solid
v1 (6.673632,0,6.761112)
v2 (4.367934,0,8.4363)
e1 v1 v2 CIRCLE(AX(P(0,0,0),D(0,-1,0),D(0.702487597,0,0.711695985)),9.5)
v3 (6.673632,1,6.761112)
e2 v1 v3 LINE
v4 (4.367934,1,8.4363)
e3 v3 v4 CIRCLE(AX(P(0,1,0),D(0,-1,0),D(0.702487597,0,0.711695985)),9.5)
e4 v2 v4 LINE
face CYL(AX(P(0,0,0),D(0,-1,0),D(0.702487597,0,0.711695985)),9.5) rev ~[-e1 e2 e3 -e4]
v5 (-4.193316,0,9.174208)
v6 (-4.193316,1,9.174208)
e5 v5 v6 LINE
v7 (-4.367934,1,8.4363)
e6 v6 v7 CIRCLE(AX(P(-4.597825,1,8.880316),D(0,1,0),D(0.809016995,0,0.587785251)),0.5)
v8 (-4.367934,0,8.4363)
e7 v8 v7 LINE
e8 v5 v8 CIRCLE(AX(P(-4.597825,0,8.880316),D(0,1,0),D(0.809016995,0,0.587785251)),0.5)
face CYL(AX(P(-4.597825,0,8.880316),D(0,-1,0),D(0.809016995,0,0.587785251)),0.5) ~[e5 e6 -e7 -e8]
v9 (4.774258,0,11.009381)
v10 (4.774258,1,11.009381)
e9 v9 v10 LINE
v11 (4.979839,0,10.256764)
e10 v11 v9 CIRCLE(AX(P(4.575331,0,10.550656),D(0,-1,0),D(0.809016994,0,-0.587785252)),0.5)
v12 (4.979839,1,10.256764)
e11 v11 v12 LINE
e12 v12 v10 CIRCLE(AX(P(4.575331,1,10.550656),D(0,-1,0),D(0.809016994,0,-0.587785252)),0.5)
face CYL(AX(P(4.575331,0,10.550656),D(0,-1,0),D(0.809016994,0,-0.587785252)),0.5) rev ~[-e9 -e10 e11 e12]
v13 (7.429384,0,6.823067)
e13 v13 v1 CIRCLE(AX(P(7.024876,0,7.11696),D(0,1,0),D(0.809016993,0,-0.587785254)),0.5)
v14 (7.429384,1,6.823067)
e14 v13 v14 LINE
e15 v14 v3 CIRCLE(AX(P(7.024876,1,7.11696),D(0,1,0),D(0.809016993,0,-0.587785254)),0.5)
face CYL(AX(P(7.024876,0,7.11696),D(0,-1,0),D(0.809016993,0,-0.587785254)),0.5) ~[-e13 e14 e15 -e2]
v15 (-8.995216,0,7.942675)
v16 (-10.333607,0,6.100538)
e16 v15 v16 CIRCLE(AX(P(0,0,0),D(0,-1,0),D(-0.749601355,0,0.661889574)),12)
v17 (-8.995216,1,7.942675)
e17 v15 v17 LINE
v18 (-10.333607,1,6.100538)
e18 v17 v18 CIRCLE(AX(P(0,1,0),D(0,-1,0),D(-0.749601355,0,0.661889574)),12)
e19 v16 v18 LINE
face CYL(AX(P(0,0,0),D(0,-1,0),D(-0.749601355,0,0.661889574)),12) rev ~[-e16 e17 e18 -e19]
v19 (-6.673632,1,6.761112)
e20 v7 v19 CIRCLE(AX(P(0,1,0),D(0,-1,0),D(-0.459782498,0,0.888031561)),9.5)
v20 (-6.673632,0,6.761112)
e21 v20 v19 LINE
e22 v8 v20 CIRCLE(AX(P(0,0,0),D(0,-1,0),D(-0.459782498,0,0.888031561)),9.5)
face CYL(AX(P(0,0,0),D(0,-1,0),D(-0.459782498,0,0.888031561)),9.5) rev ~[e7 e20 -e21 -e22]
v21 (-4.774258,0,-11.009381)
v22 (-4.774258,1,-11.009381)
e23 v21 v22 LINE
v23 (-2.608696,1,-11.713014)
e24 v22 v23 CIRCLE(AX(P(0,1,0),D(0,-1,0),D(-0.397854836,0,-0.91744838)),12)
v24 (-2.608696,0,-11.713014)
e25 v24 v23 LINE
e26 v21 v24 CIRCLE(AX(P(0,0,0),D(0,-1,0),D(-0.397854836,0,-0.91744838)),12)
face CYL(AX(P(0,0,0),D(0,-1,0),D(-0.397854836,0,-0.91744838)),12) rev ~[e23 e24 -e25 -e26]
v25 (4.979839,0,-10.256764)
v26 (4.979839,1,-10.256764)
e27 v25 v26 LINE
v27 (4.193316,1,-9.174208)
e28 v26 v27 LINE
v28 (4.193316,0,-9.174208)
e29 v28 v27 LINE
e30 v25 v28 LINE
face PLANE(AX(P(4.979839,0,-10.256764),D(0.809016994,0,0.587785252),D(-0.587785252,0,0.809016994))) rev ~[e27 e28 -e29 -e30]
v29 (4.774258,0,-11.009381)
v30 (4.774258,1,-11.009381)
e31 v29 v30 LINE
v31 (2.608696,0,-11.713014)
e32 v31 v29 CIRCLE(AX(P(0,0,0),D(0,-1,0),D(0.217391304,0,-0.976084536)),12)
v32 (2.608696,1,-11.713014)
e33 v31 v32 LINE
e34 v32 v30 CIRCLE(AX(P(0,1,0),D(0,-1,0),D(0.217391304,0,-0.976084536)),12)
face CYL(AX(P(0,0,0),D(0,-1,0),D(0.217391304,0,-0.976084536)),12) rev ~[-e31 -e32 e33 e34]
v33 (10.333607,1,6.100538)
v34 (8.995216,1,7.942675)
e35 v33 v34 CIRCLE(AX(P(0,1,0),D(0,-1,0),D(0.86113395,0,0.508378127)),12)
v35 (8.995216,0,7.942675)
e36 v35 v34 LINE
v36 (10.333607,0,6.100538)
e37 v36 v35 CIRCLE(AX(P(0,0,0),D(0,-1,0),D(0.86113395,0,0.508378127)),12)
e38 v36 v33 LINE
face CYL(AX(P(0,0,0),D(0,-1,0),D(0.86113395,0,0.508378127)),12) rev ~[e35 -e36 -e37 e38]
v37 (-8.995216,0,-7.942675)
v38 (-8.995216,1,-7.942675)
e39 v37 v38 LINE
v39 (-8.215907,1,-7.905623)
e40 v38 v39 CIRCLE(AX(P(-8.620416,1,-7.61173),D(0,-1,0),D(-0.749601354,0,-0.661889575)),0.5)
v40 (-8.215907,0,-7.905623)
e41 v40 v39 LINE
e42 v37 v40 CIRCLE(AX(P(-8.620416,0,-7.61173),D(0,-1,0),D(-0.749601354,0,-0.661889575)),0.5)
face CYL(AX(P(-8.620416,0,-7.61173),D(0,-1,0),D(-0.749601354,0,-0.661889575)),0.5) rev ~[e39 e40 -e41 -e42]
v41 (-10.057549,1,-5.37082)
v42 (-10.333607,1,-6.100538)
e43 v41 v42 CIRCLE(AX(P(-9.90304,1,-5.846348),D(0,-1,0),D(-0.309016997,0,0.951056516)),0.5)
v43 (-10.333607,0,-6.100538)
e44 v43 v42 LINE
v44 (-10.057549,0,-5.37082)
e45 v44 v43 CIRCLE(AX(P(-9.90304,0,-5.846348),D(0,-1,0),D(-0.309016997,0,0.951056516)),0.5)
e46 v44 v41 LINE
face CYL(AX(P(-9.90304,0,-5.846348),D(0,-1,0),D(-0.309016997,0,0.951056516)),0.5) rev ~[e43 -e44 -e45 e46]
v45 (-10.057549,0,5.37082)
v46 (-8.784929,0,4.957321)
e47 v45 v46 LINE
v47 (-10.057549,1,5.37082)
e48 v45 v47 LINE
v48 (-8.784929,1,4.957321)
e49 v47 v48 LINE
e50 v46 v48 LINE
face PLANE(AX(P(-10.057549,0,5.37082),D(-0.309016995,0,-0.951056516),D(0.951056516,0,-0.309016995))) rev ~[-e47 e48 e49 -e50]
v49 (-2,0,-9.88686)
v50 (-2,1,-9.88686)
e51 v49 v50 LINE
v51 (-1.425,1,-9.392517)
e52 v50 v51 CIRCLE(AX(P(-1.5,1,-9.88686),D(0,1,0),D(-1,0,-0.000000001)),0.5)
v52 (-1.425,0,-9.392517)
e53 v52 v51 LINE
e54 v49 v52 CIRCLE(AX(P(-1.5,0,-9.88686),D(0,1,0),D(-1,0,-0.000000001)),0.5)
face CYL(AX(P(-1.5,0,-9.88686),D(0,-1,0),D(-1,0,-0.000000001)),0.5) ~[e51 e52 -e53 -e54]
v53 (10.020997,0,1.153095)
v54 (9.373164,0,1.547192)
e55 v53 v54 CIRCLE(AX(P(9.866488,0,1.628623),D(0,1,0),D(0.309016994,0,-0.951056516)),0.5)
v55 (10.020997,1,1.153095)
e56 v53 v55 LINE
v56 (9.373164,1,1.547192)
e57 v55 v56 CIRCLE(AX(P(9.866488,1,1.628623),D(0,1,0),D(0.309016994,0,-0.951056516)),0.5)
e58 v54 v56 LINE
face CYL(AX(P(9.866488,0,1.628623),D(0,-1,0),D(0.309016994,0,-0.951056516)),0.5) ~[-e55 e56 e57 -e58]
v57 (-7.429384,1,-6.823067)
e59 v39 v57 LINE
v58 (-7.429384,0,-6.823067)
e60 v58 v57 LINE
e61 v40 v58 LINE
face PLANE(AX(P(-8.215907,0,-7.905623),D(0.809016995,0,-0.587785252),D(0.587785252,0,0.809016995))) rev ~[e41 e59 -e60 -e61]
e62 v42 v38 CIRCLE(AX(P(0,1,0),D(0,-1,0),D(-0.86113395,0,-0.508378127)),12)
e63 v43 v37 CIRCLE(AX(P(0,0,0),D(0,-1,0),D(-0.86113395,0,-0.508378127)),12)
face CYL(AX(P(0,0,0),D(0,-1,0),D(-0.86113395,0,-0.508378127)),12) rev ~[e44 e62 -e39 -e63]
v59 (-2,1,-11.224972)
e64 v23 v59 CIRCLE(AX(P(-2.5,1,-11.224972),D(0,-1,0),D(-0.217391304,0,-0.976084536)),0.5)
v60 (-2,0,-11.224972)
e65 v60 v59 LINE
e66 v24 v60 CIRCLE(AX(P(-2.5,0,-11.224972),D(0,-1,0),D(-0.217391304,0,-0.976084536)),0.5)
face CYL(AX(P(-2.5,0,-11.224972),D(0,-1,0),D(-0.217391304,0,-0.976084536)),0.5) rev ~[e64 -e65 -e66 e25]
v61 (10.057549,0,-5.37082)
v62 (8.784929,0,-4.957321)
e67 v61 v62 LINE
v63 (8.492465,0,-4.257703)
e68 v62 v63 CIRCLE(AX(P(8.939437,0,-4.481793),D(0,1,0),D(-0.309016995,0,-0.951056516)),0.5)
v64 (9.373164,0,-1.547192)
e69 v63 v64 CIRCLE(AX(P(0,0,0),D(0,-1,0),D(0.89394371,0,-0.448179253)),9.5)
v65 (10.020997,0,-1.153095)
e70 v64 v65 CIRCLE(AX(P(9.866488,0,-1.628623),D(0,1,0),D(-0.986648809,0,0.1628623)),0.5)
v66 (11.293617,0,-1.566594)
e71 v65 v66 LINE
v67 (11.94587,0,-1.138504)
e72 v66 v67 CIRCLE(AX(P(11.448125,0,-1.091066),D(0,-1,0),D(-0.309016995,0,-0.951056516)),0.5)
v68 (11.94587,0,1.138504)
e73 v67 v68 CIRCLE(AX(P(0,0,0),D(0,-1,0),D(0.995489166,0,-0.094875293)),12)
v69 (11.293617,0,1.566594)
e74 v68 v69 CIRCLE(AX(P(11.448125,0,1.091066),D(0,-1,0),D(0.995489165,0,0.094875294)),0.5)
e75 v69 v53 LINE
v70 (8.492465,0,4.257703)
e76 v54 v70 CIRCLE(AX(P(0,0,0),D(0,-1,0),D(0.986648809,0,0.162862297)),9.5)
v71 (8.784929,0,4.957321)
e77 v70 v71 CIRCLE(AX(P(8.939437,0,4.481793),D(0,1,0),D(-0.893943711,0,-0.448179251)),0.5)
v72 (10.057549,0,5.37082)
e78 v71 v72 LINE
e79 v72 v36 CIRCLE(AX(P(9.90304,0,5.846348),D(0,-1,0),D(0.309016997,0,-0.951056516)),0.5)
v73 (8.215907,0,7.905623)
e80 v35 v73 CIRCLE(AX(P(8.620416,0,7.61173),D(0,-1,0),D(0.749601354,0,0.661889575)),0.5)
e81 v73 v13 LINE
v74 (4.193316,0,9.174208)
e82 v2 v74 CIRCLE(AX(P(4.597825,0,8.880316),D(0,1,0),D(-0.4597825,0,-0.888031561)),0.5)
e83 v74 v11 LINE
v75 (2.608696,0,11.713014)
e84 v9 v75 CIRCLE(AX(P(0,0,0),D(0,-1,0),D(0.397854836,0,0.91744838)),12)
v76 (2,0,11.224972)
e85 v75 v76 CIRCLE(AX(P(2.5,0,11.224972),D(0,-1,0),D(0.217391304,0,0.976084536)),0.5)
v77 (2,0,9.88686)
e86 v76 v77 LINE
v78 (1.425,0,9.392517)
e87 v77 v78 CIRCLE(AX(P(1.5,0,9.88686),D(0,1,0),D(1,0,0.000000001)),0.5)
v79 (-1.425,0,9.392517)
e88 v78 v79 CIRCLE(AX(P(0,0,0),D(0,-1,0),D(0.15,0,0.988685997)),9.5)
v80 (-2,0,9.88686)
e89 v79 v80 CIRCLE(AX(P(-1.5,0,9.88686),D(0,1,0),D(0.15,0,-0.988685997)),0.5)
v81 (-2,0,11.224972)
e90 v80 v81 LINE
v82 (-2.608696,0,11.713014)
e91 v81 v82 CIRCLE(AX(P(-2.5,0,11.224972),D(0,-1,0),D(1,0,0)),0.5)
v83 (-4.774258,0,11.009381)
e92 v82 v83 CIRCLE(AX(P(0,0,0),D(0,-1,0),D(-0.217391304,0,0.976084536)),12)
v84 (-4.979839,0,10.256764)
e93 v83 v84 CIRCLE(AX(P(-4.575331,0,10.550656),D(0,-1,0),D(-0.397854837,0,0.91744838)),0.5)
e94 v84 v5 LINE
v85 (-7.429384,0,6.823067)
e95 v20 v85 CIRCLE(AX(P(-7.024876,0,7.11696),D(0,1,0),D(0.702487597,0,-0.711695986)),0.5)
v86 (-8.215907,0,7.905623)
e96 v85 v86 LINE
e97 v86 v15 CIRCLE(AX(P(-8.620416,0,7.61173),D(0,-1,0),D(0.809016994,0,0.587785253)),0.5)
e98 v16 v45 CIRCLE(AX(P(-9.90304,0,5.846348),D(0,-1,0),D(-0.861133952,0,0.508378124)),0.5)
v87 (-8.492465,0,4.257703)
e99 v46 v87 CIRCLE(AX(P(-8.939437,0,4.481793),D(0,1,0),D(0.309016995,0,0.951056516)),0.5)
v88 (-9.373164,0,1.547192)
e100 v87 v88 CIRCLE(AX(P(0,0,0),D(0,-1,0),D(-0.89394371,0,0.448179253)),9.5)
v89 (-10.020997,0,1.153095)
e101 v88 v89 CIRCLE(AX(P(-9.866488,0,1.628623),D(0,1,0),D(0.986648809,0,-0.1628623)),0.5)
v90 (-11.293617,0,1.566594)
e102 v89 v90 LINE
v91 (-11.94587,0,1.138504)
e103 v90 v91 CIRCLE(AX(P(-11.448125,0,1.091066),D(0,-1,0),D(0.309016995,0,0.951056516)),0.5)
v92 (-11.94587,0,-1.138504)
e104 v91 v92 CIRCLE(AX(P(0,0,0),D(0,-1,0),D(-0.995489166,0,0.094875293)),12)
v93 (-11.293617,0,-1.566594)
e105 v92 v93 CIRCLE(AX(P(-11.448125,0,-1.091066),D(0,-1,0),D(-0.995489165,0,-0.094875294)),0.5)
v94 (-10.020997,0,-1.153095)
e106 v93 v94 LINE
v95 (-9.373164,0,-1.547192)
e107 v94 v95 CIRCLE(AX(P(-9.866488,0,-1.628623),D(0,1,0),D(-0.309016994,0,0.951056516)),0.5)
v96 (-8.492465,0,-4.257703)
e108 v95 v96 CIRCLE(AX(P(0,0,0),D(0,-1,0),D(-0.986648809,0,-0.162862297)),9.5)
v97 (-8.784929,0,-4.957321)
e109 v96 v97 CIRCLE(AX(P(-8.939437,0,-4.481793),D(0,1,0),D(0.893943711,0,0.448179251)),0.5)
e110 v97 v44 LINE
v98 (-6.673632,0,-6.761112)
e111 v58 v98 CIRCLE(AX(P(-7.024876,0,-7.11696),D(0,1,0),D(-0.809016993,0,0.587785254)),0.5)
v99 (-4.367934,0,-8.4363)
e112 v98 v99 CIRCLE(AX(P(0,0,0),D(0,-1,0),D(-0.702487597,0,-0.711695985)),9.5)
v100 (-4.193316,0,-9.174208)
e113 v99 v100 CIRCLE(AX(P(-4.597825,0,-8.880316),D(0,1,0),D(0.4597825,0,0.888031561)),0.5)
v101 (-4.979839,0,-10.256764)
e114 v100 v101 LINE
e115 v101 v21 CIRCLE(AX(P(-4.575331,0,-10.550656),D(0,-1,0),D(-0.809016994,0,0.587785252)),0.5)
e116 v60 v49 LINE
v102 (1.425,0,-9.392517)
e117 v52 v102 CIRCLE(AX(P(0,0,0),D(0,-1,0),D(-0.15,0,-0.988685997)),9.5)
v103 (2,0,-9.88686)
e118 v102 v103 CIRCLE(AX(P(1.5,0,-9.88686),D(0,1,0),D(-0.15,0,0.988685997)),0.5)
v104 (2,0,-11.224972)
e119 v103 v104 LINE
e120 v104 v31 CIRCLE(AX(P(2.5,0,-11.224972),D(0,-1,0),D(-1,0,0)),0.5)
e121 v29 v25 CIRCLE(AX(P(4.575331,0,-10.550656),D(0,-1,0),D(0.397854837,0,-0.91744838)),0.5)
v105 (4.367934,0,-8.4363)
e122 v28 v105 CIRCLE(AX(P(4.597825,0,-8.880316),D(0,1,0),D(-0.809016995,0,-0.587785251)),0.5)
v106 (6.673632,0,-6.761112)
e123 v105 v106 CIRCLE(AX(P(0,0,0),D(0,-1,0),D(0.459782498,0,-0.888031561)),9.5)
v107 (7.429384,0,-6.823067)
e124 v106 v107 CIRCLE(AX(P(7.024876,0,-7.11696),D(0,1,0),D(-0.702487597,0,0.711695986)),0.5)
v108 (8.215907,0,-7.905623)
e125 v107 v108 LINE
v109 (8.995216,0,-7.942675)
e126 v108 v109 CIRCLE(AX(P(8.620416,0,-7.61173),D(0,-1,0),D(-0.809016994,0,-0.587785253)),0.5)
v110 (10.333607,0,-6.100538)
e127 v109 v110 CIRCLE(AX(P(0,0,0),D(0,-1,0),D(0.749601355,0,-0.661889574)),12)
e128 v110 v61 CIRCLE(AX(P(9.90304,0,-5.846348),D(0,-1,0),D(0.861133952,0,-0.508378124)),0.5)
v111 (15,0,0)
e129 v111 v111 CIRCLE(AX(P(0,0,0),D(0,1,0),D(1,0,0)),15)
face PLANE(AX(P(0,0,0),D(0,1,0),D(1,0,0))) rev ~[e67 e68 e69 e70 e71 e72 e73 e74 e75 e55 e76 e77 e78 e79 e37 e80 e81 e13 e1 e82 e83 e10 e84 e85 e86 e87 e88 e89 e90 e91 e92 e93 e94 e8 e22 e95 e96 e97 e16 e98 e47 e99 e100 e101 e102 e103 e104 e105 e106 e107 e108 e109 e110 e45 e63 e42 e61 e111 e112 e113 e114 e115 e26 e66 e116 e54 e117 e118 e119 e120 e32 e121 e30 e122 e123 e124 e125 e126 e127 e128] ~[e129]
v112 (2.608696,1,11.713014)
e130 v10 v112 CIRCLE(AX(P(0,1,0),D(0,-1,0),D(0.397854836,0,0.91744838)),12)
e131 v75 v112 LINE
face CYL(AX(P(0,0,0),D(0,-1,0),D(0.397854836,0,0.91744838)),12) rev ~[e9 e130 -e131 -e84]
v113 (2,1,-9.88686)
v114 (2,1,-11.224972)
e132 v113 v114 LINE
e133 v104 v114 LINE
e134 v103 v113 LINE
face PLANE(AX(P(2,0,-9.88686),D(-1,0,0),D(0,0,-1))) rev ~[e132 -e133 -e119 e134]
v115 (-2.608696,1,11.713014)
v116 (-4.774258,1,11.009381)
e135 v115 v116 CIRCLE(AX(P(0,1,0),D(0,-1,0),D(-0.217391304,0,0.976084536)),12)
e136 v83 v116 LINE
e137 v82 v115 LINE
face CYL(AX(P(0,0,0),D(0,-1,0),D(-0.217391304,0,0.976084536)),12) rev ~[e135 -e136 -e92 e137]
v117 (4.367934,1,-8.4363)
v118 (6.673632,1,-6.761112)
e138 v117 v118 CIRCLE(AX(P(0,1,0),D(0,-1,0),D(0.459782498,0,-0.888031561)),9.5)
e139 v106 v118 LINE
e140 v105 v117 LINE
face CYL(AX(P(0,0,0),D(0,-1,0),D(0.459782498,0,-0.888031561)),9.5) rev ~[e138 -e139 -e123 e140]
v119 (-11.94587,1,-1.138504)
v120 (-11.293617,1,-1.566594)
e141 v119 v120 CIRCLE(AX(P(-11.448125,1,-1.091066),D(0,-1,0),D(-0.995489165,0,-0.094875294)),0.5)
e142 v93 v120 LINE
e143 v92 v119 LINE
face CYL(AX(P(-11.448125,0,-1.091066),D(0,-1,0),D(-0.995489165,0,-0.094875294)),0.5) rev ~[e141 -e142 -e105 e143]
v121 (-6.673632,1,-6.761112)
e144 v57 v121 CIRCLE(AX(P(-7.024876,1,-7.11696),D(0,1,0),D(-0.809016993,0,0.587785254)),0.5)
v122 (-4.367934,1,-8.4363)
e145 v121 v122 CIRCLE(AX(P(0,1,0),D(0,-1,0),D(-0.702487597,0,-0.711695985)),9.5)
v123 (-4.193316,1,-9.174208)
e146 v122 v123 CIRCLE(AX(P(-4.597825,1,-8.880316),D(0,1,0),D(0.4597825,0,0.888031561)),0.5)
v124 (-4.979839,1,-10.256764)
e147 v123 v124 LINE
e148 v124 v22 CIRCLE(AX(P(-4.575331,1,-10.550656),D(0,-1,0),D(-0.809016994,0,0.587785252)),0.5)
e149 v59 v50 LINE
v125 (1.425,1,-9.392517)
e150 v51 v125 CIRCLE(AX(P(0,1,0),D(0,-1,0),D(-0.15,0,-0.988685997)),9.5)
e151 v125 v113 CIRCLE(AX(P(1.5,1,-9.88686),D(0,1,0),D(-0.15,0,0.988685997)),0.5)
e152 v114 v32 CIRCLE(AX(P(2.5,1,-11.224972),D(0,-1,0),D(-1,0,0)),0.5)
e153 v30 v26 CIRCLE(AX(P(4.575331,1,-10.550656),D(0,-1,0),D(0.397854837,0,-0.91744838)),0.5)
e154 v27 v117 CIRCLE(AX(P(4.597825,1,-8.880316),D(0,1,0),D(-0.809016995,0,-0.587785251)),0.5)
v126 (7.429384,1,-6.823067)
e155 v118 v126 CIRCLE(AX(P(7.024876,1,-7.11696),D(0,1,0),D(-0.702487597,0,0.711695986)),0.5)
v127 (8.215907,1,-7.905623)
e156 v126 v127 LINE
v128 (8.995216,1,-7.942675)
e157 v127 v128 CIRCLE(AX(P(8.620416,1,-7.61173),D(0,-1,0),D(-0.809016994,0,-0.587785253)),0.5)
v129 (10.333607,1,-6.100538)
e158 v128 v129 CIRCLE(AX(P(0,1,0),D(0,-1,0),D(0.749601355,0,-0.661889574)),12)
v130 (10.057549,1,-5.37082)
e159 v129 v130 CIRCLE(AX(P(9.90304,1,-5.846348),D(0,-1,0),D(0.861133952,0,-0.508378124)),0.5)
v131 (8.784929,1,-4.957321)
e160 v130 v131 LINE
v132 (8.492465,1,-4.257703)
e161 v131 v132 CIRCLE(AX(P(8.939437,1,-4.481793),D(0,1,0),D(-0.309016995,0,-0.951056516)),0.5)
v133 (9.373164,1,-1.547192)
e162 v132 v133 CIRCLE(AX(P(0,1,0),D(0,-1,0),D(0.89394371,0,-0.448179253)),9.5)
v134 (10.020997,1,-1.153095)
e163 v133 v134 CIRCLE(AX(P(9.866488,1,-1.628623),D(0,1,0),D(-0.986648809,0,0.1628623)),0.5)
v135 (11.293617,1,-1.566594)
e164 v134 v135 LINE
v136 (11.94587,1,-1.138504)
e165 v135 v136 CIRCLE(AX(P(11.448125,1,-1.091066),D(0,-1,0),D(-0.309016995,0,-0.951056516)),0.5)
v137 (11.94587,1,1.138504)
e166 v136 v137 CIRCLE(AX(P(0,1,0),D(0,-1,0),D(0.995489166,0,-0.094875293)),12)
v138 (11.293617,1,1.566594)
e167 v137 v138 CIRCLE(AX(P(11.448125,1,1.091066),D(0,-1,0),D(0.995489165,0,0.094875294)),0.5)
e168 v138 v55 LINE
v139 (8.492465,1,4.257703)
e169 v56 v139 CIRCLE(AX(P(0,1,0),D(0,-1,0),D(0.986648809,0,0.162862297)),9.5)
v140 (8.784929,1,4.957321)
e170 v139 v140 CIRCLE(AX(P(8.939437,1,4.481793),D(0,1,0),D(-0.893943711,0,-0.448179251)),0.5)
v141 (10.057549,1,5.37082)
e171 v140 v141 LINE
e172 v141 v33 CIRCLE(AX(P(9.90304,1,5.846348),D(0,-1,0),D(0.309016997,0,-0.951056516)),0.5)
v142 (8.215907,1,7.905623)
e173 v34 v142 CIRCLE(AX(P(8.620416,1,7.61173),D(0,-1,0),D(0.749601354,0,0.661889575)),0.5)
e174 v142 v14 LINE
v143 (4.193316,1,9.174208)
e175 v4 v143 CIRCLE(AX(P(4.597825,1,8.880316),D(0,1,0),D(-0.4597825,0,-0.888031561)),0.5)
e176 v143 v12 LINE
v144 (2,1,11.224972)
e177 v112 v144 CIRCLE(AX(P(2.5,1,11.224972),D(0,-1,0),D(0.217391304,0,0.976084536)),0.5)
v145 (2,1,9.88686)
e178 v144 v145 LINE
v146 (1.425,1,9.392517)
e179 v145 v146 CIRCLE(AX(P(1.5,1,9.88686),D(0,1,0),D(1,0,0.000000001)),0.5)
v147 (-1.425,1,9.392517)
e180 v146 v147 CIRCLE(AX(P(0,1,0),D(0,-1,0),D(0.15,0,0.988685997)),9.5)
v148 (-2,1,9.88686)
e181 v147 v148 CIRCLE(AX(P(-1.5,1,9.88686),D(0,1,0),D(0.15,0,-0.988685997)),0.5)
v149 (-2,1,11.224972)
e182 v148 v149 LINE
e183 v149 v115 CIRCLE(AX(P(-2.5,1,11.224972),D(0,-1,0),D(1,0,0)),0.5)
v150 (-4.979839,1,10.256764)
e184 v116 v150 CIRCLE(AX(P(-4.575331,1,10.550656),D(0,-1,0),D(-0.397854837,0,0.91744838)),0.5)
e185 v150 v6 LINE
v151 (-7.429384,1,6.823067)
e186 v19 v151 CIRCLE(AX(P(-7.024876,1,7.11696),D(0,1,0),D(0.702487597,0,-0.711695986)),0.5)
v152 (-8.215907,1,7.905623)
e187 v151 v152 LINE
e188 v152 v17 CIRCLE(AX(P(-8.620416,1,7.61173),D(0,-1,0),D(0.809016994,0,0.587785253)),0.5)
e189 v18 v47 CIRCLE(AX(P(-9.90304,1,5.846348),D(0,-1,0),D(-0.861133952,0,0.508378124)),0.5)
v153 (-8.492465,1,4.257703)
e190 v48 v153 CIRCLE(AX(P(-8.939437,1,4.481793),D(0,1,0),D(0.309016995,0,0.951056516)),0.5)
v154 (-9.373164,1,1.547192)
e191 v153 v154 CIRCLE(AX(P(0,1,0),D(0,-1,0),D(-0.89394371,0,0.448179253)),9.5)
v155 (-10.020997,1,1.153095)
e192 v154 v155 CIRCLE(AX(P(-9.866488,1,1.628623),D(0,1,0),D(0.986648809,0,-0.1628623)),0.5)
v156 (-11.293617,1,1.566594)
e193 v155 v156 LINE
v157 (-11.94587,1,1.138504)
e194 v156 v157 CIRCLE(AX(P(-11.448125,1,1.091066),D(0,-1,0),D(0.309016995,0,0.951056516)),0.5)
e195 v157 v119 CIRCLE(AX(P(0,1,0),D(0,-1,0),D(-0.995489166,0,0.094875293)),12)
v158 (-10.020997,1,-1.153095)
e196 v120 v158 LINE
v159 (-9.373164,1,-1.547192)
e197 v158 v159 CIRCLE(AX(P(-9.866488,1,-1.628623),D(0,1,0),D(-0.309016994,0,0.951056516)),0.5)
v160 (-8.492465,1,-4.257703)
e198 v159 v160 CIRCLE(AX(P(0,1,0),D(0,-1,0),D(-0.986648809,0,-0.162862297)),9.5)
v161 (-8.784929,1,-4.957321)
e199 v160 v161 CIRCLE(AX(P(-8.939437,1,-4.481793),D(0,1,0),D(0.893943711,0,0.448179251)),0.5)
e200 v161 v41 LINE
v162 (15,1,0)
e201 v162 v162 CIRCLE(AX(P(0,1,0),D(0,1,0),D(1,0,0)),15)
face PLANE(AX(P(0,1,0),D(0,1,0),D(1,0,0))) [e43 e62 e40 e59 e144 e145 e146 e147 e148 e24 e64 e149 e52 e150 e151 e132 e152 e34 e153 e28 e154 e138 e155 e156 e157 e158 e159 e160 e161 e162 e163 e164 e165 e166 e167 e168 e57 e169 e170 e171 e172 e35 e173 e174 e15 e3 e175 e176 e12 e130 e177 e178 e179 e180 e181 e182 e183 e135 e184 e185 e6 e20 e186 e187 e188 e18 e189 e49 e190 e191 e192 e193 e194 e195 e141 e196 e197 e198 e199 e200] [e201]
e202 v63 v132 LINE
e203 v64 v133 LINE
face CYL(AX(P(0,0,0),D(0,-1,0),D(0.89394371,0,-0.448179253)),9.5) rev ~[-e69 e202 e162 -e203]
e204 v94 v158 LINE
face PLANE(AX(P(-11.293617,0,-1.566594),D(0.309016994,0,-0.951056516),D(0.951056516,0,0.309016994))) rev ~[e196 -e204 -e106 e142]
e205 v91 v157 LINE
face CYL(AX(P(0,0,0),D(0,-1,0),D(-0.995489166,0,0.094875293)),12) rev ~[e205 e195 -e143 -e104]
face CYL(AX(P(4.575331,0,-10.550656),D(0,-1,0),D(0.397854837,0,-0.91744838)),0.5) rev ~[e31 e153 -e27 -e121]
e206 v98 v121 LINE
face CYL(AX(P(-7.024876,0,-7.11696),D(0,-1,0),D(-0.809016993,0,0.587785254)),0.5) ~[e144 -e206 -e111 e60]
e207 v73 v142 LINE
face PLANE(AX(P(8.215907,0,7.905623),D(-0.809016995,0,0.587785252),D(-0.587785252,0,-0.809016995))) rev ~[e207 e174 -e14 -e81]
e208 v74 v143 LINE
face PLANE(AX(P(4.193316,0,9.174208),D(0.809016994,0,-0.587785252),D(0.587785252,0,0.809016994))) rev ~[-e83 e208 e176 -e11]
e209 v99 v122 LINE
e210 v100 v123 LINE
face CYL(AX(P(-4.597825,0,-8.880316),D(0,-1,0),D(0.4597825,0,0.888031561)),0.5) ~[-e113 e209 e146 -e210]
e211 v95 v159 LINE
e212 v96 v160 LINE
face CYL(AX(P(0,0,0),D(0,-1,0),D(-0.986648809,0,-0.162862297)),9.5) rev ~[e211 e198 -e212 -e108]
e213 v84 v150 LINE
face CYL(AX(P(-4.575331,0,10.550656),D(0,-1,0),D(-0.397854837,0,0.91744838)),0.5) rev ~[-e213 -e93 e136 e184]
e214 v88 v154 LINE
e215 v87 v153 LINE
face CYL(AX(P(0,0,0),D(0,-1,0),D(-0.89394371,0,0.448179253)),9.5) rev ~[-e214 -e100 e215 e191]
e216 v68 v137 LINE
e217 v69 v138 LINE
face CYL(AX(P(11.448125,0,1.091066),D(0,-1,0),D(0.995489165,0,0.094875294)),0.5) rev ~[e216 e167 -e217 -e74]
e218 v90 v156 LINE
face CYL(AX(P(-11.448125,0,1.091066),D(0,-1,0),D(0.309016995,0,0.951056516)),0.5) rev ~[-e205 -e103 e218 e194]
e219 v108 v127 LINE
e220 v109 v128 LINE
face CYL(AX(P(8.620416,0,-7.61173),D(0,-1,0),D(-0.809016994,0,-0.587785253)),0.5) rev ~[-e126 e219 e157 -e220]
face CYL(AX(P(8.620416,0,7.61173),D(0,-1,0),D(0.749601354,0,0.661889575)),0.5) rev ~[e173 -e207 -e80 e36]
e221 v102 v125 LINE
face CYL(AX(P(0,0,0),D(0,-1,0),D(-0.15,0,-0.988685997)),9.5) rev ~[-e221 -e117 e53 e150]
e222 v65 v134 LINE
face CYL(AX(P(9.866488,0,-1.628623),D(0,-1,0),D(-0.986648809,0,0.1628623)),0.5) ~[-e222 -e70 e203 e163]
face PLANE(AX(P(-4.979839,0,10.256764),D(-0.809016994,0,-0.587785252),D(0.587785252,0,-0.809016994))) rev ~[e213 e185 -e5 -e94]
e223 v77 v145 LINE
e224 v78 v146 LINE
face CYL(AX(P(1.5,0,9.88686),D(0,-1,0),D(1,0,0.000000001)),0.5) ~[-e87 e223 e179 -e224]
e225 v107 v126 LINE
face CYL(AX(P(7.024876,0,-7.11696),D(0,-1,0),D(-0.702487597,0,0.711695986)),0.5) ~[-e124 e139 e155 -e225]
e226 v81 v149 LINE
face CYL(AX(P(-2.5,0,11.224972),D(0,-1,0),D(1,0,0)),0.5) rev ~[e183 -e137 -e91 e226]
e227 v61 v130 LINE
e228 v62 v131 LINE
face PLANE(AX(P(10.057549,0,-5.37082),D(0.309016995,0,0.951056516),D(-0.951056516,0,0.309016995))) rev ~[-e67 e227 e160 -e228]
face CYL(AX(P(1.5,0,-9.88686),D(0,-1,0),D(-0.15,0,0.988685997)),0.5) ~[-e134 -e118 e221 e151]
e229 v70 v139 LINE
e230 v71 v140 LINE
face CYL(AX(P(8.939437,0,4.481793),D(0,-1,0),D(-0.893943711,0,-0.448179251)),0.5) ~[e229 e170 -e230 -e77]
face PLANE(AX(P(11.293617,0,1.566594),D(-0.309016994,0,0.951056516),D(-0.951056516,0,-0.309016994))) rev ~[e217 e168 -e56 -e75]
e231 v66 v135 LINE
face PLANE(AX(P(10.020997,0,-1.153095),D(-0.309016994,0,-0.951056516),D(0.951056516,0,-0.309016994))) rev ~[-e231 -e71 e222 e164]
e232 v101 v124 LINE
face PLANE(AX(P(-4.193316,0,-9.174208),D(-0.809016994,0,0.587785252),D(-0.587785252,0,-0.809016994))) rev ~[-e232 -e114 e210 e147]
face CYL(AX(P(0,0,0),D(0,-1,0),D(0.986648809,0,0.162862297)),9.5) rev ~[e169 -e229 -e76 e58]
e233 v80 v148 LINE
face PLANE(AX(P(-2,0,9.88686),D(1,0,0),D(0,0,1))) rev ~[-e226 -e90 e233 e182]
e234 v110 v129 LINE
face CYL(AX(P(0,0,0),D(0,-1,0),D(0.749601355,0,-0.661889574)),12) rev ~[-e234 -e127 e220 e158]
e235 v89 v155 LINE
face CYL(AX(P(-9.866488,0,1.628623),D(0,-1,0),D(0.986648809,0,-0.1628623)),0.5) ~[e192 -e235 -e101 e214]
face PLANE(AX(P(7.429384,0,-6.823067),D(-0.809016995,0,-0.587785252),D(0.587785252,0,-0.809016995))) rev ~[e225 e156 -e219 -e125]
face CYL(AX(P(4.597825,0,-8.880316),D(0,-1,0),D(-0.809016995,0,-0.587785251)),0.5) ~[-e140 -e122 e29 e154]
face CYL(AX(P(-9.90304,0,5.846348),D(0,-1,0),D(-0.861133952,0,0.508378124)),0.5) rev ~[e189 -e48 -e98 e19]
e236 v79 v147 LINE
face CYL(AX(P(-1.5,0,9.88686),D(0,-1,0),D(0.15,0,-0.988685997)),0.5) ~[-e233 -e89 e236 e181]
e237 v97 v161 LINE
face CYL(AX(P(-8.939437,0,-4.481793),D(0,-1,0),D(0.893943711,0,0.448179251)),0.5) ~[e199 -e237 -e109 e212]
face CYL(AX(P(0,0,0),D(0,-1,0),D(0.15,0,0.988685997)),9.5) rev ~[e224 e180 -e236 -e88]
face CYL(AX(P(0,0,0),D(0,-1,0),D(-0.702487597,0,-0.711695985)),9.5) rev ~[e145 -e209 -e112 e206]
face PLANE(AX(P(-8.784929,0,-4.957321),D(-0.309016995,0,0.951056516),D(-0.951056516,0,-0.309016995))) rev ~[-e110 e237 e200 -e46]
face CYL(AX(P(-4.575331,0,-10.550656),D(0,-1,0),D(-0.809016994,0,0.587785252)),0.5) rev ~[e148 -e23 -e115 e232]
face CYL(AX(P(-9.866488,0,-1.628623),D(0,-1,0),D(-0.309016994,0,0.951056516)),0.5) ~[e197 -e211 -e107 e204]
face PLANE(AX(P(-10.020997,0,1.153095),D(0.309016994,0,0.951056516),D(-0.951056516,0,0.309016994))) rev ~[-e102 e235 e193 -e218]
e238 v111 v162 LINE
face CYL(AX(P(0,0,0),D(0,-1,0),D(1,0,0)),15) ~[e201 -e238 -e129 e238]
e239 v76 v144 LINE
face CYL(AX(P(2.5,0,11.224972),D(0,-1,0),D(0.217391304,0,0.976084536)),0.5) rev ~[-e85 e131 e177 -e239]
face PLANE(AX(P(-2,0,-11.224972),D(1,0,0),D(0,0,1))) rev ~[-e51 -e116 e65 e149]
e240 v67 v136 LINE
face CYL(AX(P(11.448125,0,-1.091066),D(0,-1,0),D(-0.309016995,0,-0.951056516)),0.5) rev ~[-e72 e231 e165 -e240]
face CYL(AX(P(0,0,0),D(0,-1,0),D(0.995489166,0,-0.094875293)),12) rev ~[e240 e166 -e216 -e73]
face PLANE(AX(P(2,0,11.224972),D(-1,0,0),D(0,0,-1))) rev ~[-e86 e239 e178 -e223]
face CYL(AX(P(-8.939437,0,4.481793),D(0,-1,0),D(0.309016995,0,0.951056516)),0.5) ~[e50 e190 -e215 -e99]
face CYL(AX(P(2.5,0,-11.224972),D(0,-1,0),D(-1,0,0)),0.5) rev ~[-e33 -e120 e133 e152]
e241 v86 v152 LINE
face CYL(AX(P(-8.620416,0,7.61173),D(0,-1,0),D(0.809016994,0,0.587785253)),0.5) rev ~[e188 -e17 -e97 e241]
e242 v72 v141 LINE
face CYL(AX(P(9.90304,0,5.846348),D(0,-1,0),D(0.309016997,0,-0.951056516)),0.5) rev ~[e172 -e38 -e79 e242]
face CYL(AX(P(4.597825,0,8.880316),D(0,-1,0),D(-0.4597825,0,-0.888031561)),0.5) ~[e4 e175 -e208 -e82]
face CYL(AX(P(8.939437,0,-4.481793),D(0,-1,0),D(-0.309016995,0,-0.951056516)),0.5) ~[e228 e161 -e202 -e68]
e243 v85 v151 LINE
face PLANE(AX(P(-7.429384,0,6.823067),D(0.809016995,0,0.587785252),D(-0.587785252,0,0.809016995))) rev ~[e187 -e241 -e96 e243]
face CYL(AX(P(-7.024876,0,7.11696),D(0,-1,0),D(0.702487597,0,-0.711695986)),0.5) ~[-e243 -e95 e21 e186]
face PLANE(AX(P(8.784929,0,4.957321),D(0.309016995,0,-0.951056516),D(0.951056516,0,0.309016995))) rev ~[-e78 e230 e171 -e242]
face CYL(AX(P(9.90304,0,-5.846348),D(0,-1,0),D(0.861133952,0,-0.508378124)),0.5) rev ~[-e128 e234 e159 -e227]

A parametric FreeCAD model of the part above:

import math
import FreeCAD as App
import Part
import Sketcher
Q = App.Units.Quantity

doc = App.newDocument("Part")
body = doc.addObject("PartDesign::Body", "Body")

# Sketch on XZ plane
sketch1 = body.newObject("Sketcher::SketchObject", "Sketch")
sketch1.AttachmentSupport = (doc.getObject("XZ_Plane"), [""])
sketch1.MapMode = "FlatFace"
sketch1.addGeometry([
    Part.Circle(App.Vector(0, 0, 0), App.Vector(0, 0, 1), 15),  # 0
    Part.ArcOfCircle(Part.Circle(App.Vector(-2.5, -11.2, 0), App.Vector(0, 0, 1), 0.5), math.radians(-103), math.radians(0)),  # 1
    Part.LineSegment(App.Vector(-2, -11.2, 0), App.Vector(-2, -9.9, 0)),  # 2
    Part.ArcOfCircle(Part.Circle(App.Vector(-1.5, -9.9, 0), App.Vector(0, 0, 1), 0.5), math.radians(81), math.radians(180)),  # 3
    Part.ArcOfCircle(Part.Circle(App.Vector(0, 0, 0), App.Vector(0, 0, 1), 9.5), math.radians(-98.63), math.radians(-81.37)),  # 4
    Part.ArcOfCircle(Part.Circle(App.Vector(1.5, -9.9, 0), App.Vector(0, 0, 1), 0.5), math.radians(0), math.radians(99)),  # 5
    Part.LineSegment(App.Vector(2, -9.9, 0), App.Vector(2, -11.2, 0)),  # 6
    Part.ArcOfCircle(Part.Circle(App.Vector(2.5, -11.2, 0), App.Vector(0, 0, 1), 0.5), math.radians(180), math.radians(283)),  # 7
    Part.ArcOfCircle(Part.Circle(App.Vector(0, 0, 0), App.Vector(0, 0, 1), 12), math.radians(-77.44), math.radians(-66.56)),  # 8
    Part.ArcOfCircle(Part.Circle(App.Vector(4.6, -10.6, 0), App.Vector(0, 0, 1), 0.5), math.radians(-67), math.radians(36)),  # 9
    Part.LineSegment(App.Vector(5, -10.3, 0), App.Vector(4.2, -9.2, 0)),  # 10
    Part.ArcOfCircle(Part.Circle(App.Vector(4.6, -8.9, 0), App.Vector(0, 0, 1), 0.5), math.radians(117), math.radians(216)),  # 11
    Part.ArcOfCircle(Part.Circle(App.Vector(0, 0, 0), App.Vector(0, 0, 1), 9.5), math.radians(-62.63), math.radians(-45.37)),  # 12
    Part.ArcOfCircle(Part.Circle(App.Vector(7, -7.1, 0), App.Vector(0, 0, 1), 0.5), math.radians(36), math.radians(135)),  # 13
    Part.LineSegment(App.Vector(7.4, -6.8, 0), App.Vector(8.2, -7.9, 0)),  # 14
    Part.ArcOfCircle(Part.Circle(App.Vector(8.6, -7.6, 0), App.Vector(0, 0, 1), 0.5), math.radians(-144), math.radians(-41)),  # 15
    Part.ArcOfCircle(Part.Circle(App.Vector(0, 0, 0), App.Vector(0, 0, 1), 12), math.radians(-41.44), math.radians(-30.56)),  # 16
    Part.ArcOfCircle(Part.Circle(App.Vector(9.9, -5.8, 0), App.Vector(0, 0, 1), 0.5), math.radians(-31), math.radians(72)),  # 17
    Part.LineSegment(App.Vector(10.1, -5.4, 0), App.Vector(8.8, -5, 0)),  # 18
    Part.ArcOfCircle(Part.Circle(App.Vector(8.9, -4.5, 0), App.Vector(0, 0, 1), 0.5), math.radians(153), math.radians(252)),  # 19
    Part.ArcOfCircle(Part.Circle(App.Vector(0, 0, 0), App.Vector(0, 0, 1), 9.5), math.radians(-26.63), math.radians(-9.37)),  # 20
    Part.ArcOfCircle(Part.Circle(App.Vector(9.9, -1.6, 0), App.Vector(0, 0, 1), 0.5), math.radians(72), math.radians(171)),  # 21
    Part.LineSegment(App.Vector(10, -1.2, 0), App.Vector(11.3, -1.6, 0)),  # 22
    Part.ArcOfCircle(Part.Circle(App.Vector(11.4, -1.1, 0), App.Vector(0, 0, 1), 0.5), math.radians(-108), math.radians(-5)),  # 23
    Part.ArcOfCircle(Part.Circle(App.Vector(0, 0, 0), App.Vector(0, 0, 1), 12), math.radians(-5.44), math.radians(5.44)),  # 24
    Part.ArcOfCircle(Part.Circle(App.Vector(11.4, 1.1, 0), App.Vector(0, 0, 1), 0.5), math.radians(5), math.radians(108)),  # 25
    Part.LineSegment(App.Vector(11.3, 1.6, 0), App.Vector(10, 1.2, 0)),  # 26
    Part.ArcOfCircle(Part.Circle(App.Vector(9.9, 1.6, 0), App.Vector(0, 0, 1), 0.5), math.radians(-171), math.radians(-72)),  # 27
    Part.ArcOfCircle(Part.Circle(App.Vector(0, 0, 0), App.Vector(0, 0, 1), 9.5), math.radians(9.37), math.radians(26.63)),  # 28
    Part.ArcOfCircle(Part.Circle(App.Vector(8.9, 4.5, 0), App.Vector(0, 0, 1), 0.5), math.radians(108), math.radians(207)),  # 29
    Part.LineSegment(App.Vector(8.8, 5, 0), App.Vector(10.1, 5.4, 0)),  # 30
    Part.ArcOfCircle(Part.Circle(App.Vector(9.9, 5.8, 0), App.Vector(0, 0, 1), 0.5), math.radians(-72), math.radians(31)),  # 31
    Part.ArcOfCircle(Part.Circle(App.Vector(0, 0, 0), App.Vector(0, 0, 1), 12), math.radians(30.56), math.radians(41.44)),  # 32
    Part.ArcOfCircle(Part.Circle(App.Vector(8.6, 7.6, 0), App.Vector(0, 0, 1), 0.5), math.radians(41), math.radians(144)),  # 33
    Part.LineSegment(App.Vector(8.2, 7.9, 0), App.Vector(7.4, 6.8, 0)),  # 34
    Part.ArcOfCircle(Part.Circle(App.Vector(7, 7.1, 0), App.Vector(0, 0, 1), 0.5), math.radians(-135), math.radians(-36)),  # 35
    Part.ArcOfCircle(Part.Circle(App.Vector(0, 0, 0), App.Vector(0, 0, 1), 9.5), math.radians(45.37), math.radians(62.63)),  # 36
    Part.ArcOfCircle(Part.Circle(App.Vector(4.6, 8.9, 0), App.Vector(0, 0, 1), 0.5), math.radians(144), math.radians(243)),  # 37
    Part.LineSegment(App.Vector(4.2, 9.2, 0), App.Vector(5, 10.3, 0)),  # 38
    Part.ArcOfCircle(Part.Circle(App.Vector(4.6, 10.6, 0), App.Vector(0, 0, 1), 0.5), math.radians(-36), math.radians(67)),  # 39
    Part.ArcOfCircle(Part.Circle(App.Vector(0, 0, 0), App.Vector(0, 0, 1), 12), math.radians(66.56), math.radians(77.44)),  # 40
    Part.ArcOfCircle(Part.Circle(App.Vector(2.5, 11.2, 0), App.Vector(0, 0, 1), 0.5), math.radians(77), math.radians(180)),  # 41
    Part.LineSegment(App.Vector(2, 11.2, 0), App.Vector(2, 9.9, 0)),  # 42
    Part.ArcOfCircle(Part.Circle(App.Vector(1.5, 9.9, 0), App.Vector(0, 0, 1), 0.5), math.radians(-99), math.radians(0)),  # 43
    Part.ArcOfCircle(Part.Circle(App.Vector(0, 0, 0), App.Vector(0, 0, 1), 9.5), math.radians(81.37), math.radians(98.63)),  # 44
    Part.ArcOfCircle(Part.Circle(App.Vector(-1.5, 9.9, 0), App.Vector(0, 0, 1), 0.5), math.radians(180), math.radians(279)),  # 45
    Part.LineSegment(App.Vector(-2, 9.9, 0), App.Vector(-2, 11.2, 0)),  # 46
    Part.ArcOfCircle(Part.Circle(App.Vector(-2.5, 11.2, 0), App.Vector(0, 0, 1), 0.5), math.radians(0), math.radians(103)),  # 47
    Part.ArcOfCircle(Part.Circle(App.Vector(0, 0, 0), App.Vector(0, 0, 1), 12), math.radians(102.56), math.radians(113.44)),  # 48
    Part.ArcOfCircle(Part.Circle(App.Vector(-4.6, 10.6, 0), App.Vector(0, 0, 1), 0.5), math.radians(113), math.radians(216)),  # 49
    Part.LineSegment(App.Vector(-5, 10.3, 0), App.Vector(-4.2, 9.2, 0)),  # 50
    Part.ArcOfCircle(Part.Circle(App.Vector(-4.6, 8.9, 0), App.Vector(0, 0, 1), 0.5), math.radians(-63), math.radians(36)),  # 51
    Part.ArcOfCircle(Part.Circle(App.Vector(0, 0, 0), App.Vector(0, 0, 1), 9.5), math.radians(117.37), math.radians(134.63)),  # 52
    Part.ArcOfCircle(Part.Circle(App.Vector(-7, 7.1, 0), App.Vector(0, 0, 1), 0.5), math.radians(-144), math.radians(-45)),  # 53
    Part.LineSegment(App.Vector(-7.4, 6.8, 0), App.Vector(-8.2, 7.9, 0)),  # 54
    Part.ArcOfCircle(Part.Circle(App.Vector(-8.6, 7.6, 0), App.Vector(0, 0, 1), 0.5), math.radians(36), math.radians(139)),  # 55
    Part.ArcOfCircle(Part.Circle(App.Vector(0, 0, 0), App.Vector(0, 0, 1), 12), math.radians(138.56), math.radians(149.44)),  # 56
    Part.ArcOfCircle(Part.Circle(App.Vector(-9.9, 5.8, 0), App.Vector(0, 0, 1), 0.5), math.radians(149), math.radians(252)),  # 57
    Part.LineSegment(App.Vector(-10.1, 5.4, 0), App.Vector(-8.8, 5, 0)),  # 58
    Part.ArcOfCircle(Part.Circle(App.Vector(-8.9, 4.5, 0), App.Vector(0, 0, 1), 0.5), math.radians(-27), math.radians(72)),  # 59
    Part.ArcOfCircle(Part.Circle(App.Vector(0, 0, 0), App.Vector(0, 0, 1), 9.5), math.radians(153.37), math.radians(170.63)),  # 60
    Part.ArcOfCircle(Part.Circle(App.Vector(-9.9, 1.6, 0), App.Vector(0, 0, 1), 0.5), math.radians(-108), math.radians(-9)),  # 61
    Part.LineSegment(App.Vector(-10, 1.2, 0), App.Vector(-11.3, 1.6, 0)),  # 62
    Part.ArcOfCircle(Part.Circle(App.Vector(-11.4, 1.1, 0), App.Vector(0, 0, 1), 0.5), math.radians(72), math.radians(175)),  # 63
    Part.ArcOfCircle(Part.Circle(App.Vector(0, 0, 0), App.Vector(0, 0, 1), 12), math.radians(174.56), math.radians(185.44)),  # 64
    Part.ArcOfCircle(Part.Circle(App.Vector(-11.4, -1.1, 0), App.Vector(0, 0, 1), 0.5), math.radians(-175), math.radians(-72)),  # 65
    Part.LineSegment(App.Vector(-11.3, -1.6, 0), App.Vector(-10, -1.2, 0)),  # 66
    Part.ArcOfCircle(Part.Circle(App.Vector(-9.9, -1.6, 0), App.Vector(0, 0, 1), 0.5), math.radians(9), math.radians(108)),  # 67
    Part.ArcOfCircle(Part.Circle(App.Vector(0, 0, 0), App.Vector(0, 0, 1), 9.5), math.radians(-170.63), math.radians(-153.37)),  # 68
    Part.ArcOfCircle(Part.Circle(App.Vector(-8.9, -4.5, 0), App.Vector(0, 0, 1), 0.5), math.radians(-72), math.radians(27)),  # 69
    Part.LineSegment(App.Vector(-8.8, -5, 0), App.Vector(-10.1, -5.4, 0)),  # 70
    Part.ArcOfCircle(Part.Circle(App.Vector(-9.9, -5.8, 0), App.Vector(0, 0, 1), 0.5), math.radians(108), math.radians(211)),  # 71
    Part.ArcOfCircle(Part.Circle(App.Vector(0, 0, 0), App.Vector(0, 0, 1), 12), math.radians(-149.44), math.radians(-138.56)),  # 72
    Part.ArcOfCircle(Part.Circle(App.Vector(-8.6, -7.6, 0), App.Vector(0, 0, 1), 0.5), math.radians(-139), math.radians(-36)),  # 73
    Part.LineSegment(App.Vector(-8.2, -7.9, 0), App.Vector(-7.4, -6.8, 0)),  # 74
    Part.ArcOfCircle(Part.Circle(App.Vector(-7, -7.1, 0), App.Vector(0, 0, 1), 0.5), math.radians(45), math.radians(144)),  # 75
    Part.ArcOfCircle(Part.Circle(App.Vector(0, 0, 0), App.Vector(0, 0, 1), 9.5), math.radians(-134.63), math.radians(-117.37)),  # 76
    Part.ArcOfCircle(Part.Circle(App.Vector(-4.6, -8.9, 0), App.Vector(0, 0, 1), 0.5), math.radians(-36), math.radians(63)),  # 77
    Part.LineSegment(App.Vector(-4.2, -9.2, 0), App.Vector(-5, -10.3, 0)),  # 78
    Part.ArcOfCircle(Part.Circle(App.Vector(-4.6, -10.6, 0), App.Vector(0, 0, 1), 0.5), math.radians(144), math.radians(247)),  # 79
    Part.ArcOfCircle(Part.Circle(App.Vector(0, 0, 0), App.Vector(0, 0, 1), 12), math.radians(-113.44), math.radians(-102.56)),  # 80
], False)
sketch1.addConstraint([
    Sketcher.Constraint("Tangent", 1, 2, 2, 1),
    Sketcher.Constraint("Tangent", 2, 2, 3, 2),
    Sketcher.Constraint("Tangent", 3, 1, 4, 1),
    Sketcher.Constraint("Tangent", 4, 2, 5, 2),
    Sketcher.Constraint("Tangent", 5, 1, 6, 1),
    Sketcher.Constraint("Tangent", 6, 2, 7, 1),
    Sketcher.Constraint("Tangent", 7, 2, 8, 1),
    Sketcher.Constraint("Tangent", 8, 2, 9, 1),
    Sketcher.Constraint("Tangent", 9, 2, 10, 1),
    Sketcher.Constraint("Tangent", 10, 2, 11, 2),
    Sketcher.Constraint("Tangent", 11, 1, 12, 1),
    Sketcher.Constraint("Tangent", 12, 2, 13, 2),
    Sketcher.Constraint("Tangent", 13, 1, 14, 1),
    Sketcher.Constraint("Tangent", 14, 2, 15, 1),
    Sketcher.Constraint("Tangent", 15, 2, 16, 1),
    Sketcher.Constraint("Tangent", 16, 2, 17, 1),
    Sketcher.Constraint("Tangent", 17, 2, 18, 1),
    Sketcher.Constraint("Tangent", 18, 2, 19, 2),
    Sketcher.Constraint("Tangent", 19, 1, 20, 1),
    Sketcher.Constraint("Tangent", 20, 2, 21, 2),
    Sketcher.Constraint("Tangent", 21, 1, 22, 1),
    Sketcher.Constraint("Tangent", 22, 2, 23, 1),
    Sketcher.Constraint("Tangent", 23, 2, 24, 1),
    Sketcher.Constraint("Tangent", 24, 2, 25, 1),
    Sketcher.Constraint("Tangent", 25, 2, 26, 1),
    Sketcher.Constraint("Tangent", 26, 2, 27, 2),
    Sketcher.Constraint("Tangent", 27, 1, 28, 1),
    Sketcher.Constraint("Tangent", 28, 2, 29, 2),
    Sketcher.Constraint("Tangent", 29, 1, 30, 1),
    Sketcher.Constraint("Tangent", 30, 2, 31, 1),
    Sketcher.Constraint("Tangent", 31, 2, 32, 1),
    Sketcher.Constraint("Tangent", 32, 2, 33, 1),
    Sketcher.Constraint("Tangent", 33, 2, 34, 1),
    Sketcher.Constraint("Tangent", 34, 2, 35, 2),
    Sketcher.Constraint("Tangent", 35, 1, 36, 1),
    Sketcher.Constraint("Tangent", 36, 2, 37, 2),
    Sketcher.Constraint("Tangent", 37, 1, 38, 1),
    Sketcher.Constraint("Tangent", 38, 2, 39, 1),
    Sketcher.Constraint("Tangent", 39, 2, 40, 1),
    Sketcher.Constraint("Tangent", 40, 2, 41, 1),
    Sketcher.Constraint("Tangent", 41, 2, 42, 1),
    Sketcher.Constraint("Tangent", 42, 2, 43, 2),
    Sketcher.Constraint("Tangent", 43, 1, 44, 1),
    Sketcher.Constraint("Tangent", 44, 2, 45, 2),
    Sketcher.Constraint("Tangent", 45, 1, 46, 1),
    Sketcher.Constraint("Tangent", 46, 2, 47, 1),
    Sketcher.Constraint("Tangent", 47, 2, 48, 1),
    Sketcher.Constraint("Tangent", 48, 2, 49, 1),
    Sketcher.Constraint("Tangent", 49, 2, 50, 1),
    Sketcher.Constraint("Tangent", 50, 2, 51, 2),
    Sketcher.Constraint("Tangent", 51, 1, 52, 1),
    Sketcher.Constraint("Tangent", 52, 2, 53, 2),
    Sketcher.Constraint("Tangent", 53, 1, 54, 1),
    Sketcher.Constraint("Tangent", 54, 2, 55, 1),
    Sketcher.Constraint("Tangent", 55, 2, 56, 1),
    Sketcher.Constraint("Tangent", 56, 2, 57, 1),
    Sketcher.Constraint("Tangent", 57, 2, 58, 1),
    Sketcher.Constraint("Tangent", 58, 2, 59, 2),
    Sketcher.Constraint("Tangent", 59, 1, 60, 1),
    Sketcher.Constraint("Tangent", 60, 2, 61, 2),
    Sketcher.Constraint("Tangent", 61, 1, 62, 1),
    Sketcher.Constraint("Tangent", 62, 2, 63, 1),
    Sketcher.Constraint("Tangent", 63, 2, 64, 1),
    Sketcher.Constraint("Tangent", 64, 2, 65, 1),
    Sketcher.Constraint("Tangent", 65, 2, 66, 1),
    Sketcher.Constraint("Tangent", 66, 2, 67, 2),
    Sketcher.Constraint("Tangent", 67, 1, 68, 1),
    Sketcher.Constraint("Tangent", 68, 2, 69, 2),
    Sketcher.Constraint("Tangent", 69, 1, 70, 1),
    Sketcher.Constraint("Tangent", 70, 2, 71, 1),
    Sketcher.Constraint("Tangent", 71, 2, 72, 1),
    Sketcher.Constraint("Tangent", 72, 2, 73, 1),
    Sketcher.Constraint("Tangent", 73, 2, 74, 1),
    Sketcher.Constraint("Tangent", 74, 2, 75, 2),
    Sketcher.Constraint("Tangent", 75, 1, 76, 1),
    Sketcher.Constraint("Tangent", 76, 2, 77, 2),
    Sketcher.Constraint("Tangent", 77, 1, 78, 1),
    Sketcher.Constraint("Tangent", 78, 2, 79, 1),
    Sketcher.Constraint("Tangent", 79, 2, 80, 1),
    Sketcher.Constraint("Tangent", 80, 2, 1, 1),
    Sketcher.Constraint("Vertical", 2),
    Sketcher.Constraint("Vertical", 6),
    Sketcher.Constraint("Vertical", 42),
    Sketcher.Constraint("Vertical", 46),
    Sketcher.Constraint("Coincident", 0, 3, -1, 1),
    Sketcher.Constraint("Coincident", 4, 3, -1, 1),
    Sketcher.Constraint("Coincident", 8, 3, -1, 1),
    Sketcher.Constraint("Coincident", 12, 3, -1, 1),
    Sketcher.Constraint("Coincident", 16, 3, -1, 1),
    Sketcher.Constraint("Coincident", 20, 3, -1, 1),
    Sketcher.Constraint("Coincident", 24, 3, -1, 1),
    Sketcher.Constraint("Coincident", 28, 3, -1, 1),
    Sketcher.Constraint("Coincident", 32, 3, -1, 1),
    Sketcher.Constraint("Coincident", 36, 3, -1, 1),
    Sketcher.Constraint("Coincident", 40, 3, -1, 1),
    Sketcher.Constraint("Coincident", 44, 3, -1, 1),
    Sketcher.Constraint("Coincident", 48, 3, -1, 1),
    Sketcher.Constraint("Coincident", 52, 3, -1, 1),
    Sketcher.Constraint("Coincident", 56, 3, -1, 1),
    Sketcher.Constraint("Coincident", 60, 3, -1, 1),
    Sketcher.Constraint("Coincident", 64, 3, -1, 1),
    Sketcher.Constraint("Coincident", 68, 3, -1, 1),
    Sketcher.Constraint("Coincident", 72, 3, -1, 1),
    Sketcher.Constraint("Coincident", 76, 3, -1, 1),
    Sketcher.Constraint("Coincident", 80, 3, -1, 1),
    Sketcher.Constraint("Equal", 1, 3),
    Sketcher.Constraint("Equal", 3, 5),
    Sketcher.Constraint("Equal", 5, 7),
    Sketcher.Constraint("Equal", 7, 9),
    Sketcher.Constraint("Equal", 9, 11),
    Sketcher.Constraint("Equal", 4, 12),
    Sketcher.Constraint("Equal", 11, 13),
    Sketcher.Constraint("Equal", 13, 15),
    Sketcher.Constraint("Equal", 8, 16),
    Sketcher.Constraint("Equal", 15, 17),
    Sketcher.Constraint("Equal", 17, 19),
    Sketcher.Constraint("Equal", 12, 20),
    Sketcher.Constraint("Equal", 19, 21),
    Sketcher.Constraint("Equal", 21, 23),
    Sketcher.Constraint("Equal", 16, 24),
    Sketcher.Constraint("Equal", 23, 25),
    Sketcher.Constraint("Equal", 25, 27),
    Sketcher.Constraint("Equal", 20, 28),
    Sketcher.Constraint("Equal", 27, 29),
    Sketcher.Constraint("Equal", 29, 31),
    Sketcher.Constraint("Equal", 24, 32),
    Sketcher.Constraint("Equal", 31, 33),
    Sketcher.Constraint("Equal", 33, 35),
    Sketcher.Constraint("Equal", 28, 36),
    Sketcher.Constraint("Equal", 35, 37),
    Sketcher.Constraint("Equal", 37, 39),
    Sketcher.Constraint("Equal", 32, 40),
    Sketcher.Constraint("Equal", 39, 41),
    Sketcher.Constraint("Equal", 41, 43),
    Sketcher.Constraint("Equal", 36, 44),
    Sketcher.Constraint("Equal", 43, 45),
    Sketcher.Constraint("Equal", 45, 47),
    Sketcher.Constraint("Equal", 40, 48),
    Sketcher.Constraint("Equal", 47, 49),
    Sketcher.Constraint("Equal", 49, 51),
    Sketcher.Constraint("Equal", 44, 52),
    Sketcher.Constraint("Equal", 51, 53),
    Sketcher.Constraint("Equal", 53, 55),
    Sketcher.Constraint("Equal", 48, 56),
    Sketcher.Constraint("Equal", 55, 57),
    Sketcher.Constraint("Equal", 57, 59),
    Sketcher.Constraint("Equal", 52, 60),
    Sketcher.Constraint("Equal", 59, 61),
    Sketcher.Constraint("Equal", 61, 63),
    Sketcher.Constraint("Equal", 56, 64),
    Sketcher.Constraint("Equal", 63, 65),
    Sketcher.Constraint("Equal", 65, 67),
    Sketcher.Constraint("Equal", 60, 68),
    Sketcher.Constraint("Equal", 67, 69),
    Sketcher.Constraint("Equal", 69, 71),
    Sketcher.Constraint("Equal", 64, 72),
    Sketcher.Constraint("Equal", 71, 73),
    Sketcher.Constraint("Equal", 73, 75),
    Sketcher.Constraint("Equal", 68, 76),
    Sketcher.Constraint("Equal", 75, 77),
    Sketcher.Constraint("Equal", 77, 79),
    Sketcher.Constraint("Equal", 72, 80),
    Sketcher.Constraint("Symmetric", 9, 2, 49, 2, -1, 1),
    Sketcher.Constraint("Symmetric", 13, 1, 53, 1, -1, 1),
    Sketcher.Constraint("Symmetric", 17, 2, 57, 2, -1, 1),
    Sketcher.Constraint("Symmetric", 21, 1, 61, 1, -1, 1),
    Sketcher.Constraint("Symmetric", 25, 2, 65, 2, -1, 1),
    Sketcher.Constraint("Symmetric", 29, 1, 69, 1, -1, 1),
    Sketcher.Constraint("Symmetric", 33, 2, 73, 2, -1, 1),
    Sketcher.Constraint("Symmetric", 37, 1, 77, 1, -1, 1),
    Sketcher.Constraint("Symmetric", 38, 2, 49, 2, -2),
    Sketcher.Constraint("Symmetric", 34, 2, 53, 1, -2),
    Sketcher.Constraint("Symmetric", 30, 2, 57, 2, -2),
    Sketcher.Constraint("Symmetric", 26, 2, 61, 1, -2),
    Sketcher.Constraint("Parallel", 10, 14),
    Sketcher.Constraint("Parallel", 18, 22),
    Sketcher.Constraint("Horizontal", 3, 3, 5, 3),
    Sketcher.Constraint("Horizontal", 43, 3, 45, 3),
    Sketcher.Constraint("Vertical", 7, 3, 41, 3),
    Sketcher.Constraint("Equal", 10, 14),
    Sketcher.Constraint("Equal", 14, 18),
    Sketcher.Constraint("Equal", 18, 22),
    Sketcher.Constraint("Diameter", 0, Q("30 mm")),
    Sketcher.Constraint("Radius", 8, Q("12 mm")),
    Sketcher.Constraint("Radius", 1, Q("0.5 mm")),
    Sketcher.Constraint("Radius", 4, Q("9.5 mm")),
    Sketcher.Constraint("Angle", 10, Q("126 deg")),
    Sketcher.Constraint("Angle", 18, Q("162 deg")),
    Sketcher.Constraint("DistanceX", 1, 2, -1, 1, Q("2 mm")),
    Sketcher.Constraint("DistanceY", 11, 1, -1, 1, Q("8.4363 mm")),
])
pad1 = body.newObject("PartDesign::Pad", "Pad")
pad1.Profile = sketch1
pad1.Length = 1
pad1.Reversed = True

doc.recompute()
